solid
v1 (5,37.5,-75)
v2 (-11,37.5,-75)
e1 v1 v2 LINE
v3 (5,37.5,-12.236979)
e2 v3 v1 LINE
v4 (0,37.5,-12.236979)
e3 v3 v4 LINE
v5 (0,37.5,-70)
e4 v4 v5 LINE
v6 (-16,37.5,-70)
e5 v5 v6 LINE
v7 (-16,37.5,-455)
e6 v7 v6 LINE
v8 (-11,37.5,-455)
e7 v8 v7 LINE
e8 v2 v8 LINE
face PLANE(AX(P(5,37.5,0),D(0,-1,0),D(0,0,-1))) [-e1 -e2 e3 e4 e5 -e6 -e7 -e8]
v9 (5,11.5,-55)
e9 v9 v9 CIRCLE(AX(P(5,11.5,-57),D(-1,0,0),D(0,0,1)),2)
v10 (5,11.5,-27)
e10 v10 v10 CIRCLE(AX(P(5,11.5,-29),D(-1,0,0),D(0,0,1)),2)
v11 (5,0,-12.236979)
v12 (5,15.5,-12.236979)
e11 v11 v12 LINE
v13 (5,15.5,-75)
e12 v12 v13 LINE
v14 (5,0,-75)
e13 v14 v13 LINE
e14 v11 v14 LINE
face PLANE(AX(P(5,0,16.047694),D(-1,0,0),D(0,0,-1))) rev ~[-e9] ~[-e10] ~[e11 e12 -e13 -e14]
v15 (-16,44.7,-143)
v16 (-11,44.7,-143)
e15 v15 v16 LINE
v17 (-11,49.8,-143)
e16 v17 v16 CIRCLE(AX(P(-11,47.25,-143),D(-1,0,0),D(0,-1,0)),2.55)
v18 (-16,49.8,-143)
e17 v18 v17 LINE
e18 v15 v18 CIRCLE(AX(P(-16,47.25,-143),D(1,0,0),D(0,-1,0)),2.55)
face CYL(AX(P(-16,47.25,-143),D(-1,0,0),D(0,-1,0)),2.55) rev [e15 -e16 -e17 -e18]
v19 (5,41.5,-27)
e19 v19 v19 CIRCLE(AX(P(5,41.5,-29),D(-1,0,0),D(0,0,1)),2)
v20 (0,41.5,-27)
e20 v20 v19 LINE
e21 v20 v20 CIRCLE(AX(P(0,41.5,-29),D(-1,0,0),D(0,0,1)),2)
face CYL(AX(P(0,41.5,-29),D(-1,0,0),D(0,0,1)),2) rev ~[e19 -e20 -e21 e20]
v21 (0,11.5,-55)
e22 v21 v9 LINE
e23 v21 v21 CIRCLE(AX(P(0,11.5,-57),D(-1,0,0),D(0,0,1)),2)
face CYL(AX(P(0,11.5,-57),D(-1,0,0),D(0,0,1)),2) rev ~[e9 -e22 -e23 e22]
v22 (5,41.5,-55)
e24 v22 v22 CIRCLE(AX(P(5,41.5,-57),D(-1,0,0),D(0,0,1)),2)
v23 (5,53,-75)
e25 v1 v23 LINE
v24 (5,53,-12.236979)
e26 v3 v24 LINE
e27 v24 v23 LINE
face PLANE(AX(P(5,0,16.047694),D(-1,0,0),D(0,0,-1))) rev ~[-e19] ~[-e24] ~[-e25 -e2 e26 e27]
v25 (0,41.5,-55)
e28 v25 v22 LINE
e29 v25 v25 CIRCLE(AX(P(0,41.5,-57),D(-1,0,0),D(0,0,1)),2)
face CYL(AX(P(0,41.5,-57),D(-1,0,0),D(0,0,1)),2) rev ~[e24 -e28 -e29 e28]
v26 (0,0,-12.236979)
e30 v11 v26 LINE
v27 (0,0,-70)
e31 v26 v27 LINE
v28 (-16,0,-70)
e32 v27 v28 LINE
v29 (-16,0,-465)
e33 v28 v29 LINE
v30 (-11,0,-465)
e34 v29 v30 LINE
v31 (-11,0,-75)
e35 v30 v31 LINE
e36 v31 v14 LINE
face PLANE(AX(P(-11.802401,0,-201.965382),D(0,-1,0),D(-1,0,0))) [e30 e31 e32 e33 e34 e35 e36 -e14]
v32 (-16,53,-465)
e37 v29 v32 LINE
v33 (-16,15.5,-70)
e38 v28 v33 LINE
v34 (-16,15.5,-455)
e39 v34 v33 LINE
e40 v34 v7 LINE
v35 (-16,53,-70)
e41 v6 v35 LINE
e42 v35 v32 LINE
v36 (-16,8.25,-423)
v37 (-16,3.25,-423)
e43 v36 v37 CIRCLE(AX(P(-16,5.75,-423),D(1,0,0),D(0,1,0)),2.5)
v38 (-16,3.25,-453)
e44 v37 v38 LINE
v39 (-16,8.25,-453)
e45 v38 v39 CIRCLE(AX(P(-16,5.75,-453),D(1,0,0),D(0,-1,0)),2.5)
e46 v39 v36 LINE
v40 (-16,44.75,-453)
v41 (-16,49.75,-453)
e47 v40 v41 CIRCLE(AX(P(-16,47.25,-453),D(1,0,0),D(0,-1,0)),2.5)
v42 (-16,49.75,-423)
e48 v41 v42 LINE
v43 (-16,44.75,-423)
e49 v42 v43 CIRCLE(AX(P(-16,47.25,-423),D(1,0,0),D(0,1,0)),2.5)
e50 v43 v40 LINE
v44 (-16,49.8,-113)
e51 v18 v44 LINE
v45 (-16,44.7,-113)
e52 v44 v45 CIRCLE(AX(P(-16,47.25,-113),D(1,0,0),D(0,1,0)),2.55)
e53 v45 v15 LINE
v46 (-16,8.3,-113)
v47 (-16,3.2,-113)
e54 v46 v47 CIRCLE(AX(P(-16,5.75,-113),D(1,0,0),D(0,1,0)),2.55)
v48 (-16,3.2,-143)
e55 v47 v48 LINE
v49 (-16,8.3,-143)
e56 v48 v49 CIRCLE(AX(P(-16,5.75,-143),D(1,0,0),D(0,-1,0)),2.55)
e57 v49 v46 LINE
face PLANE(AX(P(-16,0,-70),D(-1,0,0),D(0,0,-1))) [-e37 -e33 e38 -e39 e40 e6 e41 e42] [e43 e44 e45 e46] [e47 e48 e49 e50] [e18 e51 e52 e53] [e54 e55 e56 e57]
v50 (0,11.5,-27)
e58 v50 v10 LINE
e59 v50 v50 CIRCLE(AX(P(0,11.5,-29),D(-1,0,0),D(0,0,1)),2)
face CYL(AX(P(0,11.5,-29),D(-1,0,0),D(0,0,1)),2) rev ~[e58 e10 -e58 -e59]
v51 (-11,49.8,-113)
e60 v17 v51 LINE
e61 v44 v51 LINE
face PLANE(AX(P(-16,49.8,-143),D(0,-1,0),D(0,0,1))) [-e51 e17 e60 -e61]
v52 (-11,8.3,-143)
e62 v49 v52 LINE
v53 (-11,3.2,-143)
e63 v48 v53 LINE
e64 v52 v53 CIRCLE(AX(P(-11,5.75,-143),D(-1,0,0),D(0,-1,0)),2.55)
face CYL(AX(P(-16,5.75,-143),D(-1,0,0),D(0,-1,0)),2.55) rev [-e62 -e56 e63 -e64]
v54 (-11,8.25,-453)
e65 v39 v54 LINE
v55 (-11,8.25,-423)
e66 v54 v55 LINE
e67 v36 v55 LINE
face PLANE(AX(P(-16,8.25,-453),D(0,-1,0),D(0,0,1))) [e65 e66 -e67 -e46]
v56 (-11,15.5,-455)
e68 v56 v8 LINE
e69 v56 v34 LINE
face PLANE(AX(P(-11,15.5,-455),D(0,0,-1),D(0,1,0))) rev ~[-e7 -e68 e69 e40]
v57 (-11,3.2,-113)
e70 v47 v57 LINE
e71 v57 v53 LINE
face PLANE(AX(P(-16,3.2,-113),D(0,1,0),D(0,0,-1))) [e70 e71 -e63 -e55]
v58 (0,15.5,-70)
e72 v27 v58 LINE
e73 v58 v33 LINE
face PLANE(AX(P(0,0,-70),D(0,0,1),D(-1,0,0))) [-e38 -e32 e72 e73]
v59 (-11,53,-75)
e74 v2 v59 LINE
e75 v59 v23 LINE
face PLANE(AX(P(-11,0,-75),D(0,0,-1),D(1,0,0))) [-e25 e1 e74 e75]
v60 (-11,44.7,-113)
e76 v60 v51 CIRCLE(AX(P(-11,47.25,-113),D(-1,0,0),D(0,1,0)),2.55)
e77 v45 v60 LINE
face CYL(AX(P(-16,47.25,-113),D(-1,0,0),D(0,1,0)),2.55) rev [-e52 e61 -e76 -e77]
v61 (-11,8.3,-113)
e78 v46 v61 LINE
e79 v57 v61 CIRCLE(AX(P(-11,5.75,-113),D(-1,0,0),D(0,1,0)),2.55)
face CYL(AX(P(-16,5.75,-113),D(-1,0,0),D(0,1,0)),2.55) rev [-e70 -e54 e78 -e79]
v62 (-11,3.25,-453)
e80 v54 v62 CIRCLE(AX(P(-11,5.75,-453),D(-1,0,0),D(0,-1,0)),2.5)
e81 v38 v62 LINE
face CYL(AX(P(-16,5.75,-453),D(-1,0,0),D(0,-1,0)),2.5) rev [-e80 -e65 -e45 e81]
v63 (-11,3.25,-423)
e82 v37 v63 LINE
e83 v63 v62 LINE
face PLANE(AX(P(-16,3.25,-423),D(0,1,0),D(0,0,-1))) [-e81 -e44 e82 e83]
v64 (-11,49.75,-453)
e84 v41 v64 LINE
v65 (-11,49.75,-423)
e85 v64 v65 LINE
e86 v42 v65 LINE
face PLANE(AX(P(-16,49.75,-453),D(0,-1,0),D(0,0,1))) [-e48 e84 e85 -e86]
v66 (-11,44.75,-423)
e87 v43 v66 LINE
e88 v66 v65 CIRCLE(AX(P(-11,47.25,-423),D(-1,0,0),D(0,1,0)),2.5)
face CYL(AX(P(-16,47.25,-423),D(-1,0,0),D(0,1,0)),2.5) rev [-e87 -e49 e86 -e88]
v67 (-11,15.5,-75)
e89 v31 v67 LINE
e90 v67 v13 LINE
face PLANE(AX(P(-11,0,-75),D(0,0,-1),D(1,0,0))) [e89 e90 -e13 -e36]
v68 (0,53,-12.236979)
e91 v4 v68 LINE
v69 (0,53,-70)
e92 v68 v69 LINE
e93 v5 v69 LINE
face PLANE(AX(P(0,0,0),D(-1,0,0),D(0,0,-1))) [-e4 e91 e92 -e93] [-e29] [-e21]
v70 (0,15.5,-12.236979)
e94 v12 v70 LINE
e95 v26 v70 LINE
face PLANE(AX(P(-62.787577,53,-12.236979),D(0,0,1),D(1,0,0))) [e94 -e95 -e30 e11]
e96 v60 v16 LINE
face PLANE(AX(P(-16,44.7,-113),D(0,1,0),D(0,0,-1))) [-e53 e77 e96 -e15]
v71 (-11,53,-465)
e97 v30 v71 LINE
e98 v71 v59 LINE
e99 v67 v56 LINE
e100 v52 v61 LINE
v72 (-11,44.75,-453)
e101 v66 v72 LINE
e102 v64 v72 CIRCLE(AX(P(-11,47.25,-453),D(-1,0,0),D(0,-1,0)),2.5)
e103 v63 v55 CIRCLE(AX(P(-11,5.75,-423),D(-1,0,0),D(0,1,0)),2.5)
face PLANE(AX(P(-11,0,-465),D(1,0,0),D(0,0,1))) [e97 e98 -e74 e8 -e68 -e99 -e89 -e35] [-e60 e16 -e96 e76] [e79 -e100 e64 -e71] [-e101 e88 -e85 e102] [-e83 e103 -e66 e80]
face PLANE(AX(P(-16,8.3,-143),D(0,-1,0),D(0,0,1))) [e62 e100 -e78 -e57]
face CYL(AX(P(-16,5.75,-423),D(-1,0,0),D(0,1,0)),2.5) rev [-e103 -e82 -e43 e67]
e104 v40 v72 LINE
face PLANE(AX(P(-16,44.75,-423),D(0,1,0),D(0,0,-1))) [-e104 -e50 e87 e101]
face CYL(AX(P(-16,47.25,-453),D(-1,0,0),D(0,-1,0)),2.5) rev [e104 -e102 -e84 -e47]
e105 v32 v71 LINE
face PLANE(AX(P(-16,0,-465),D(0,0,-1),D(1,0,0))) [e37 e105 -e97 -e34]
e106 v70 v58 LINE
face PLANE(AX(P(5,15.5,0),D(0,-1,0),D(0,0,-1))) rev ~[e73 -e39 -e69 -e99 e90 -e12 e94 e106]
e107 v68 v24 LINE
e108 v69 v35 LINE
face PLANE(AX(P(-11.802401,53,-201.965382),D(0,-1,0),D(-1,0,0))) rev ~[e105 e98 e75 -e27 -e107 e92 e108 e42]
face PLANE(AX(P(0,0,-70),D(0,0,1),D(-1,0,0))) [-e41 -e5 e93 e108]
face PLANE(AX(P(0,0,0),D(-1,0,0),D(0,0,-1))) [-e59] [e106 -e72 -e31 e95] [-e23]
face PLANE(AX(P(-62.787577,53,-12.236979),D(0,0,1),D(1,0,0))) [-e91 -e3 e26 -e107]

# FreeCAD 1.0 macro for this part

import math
import FreeCAD as App
import Part
import Sketcher

V = App.Vector
Q = App.Units.Quantity

doc = App.newDocument("Part")
params = doc.addObject("Spreadsheet::Sheet", "Params")
for row, (alias, value) in enumerate([
    ("sketch1_width", "16 mm"),
    ("sketch1_width2", "5 mm"),
    ("sketch1_height", "70 mm"),
    ("sketch1_height2", "390 mm"),
    ("sketch1_height3", "395 mm"),
    ("pad1_length", "53 mm"),
    ("sketch2_width", "22 mm"),
    ("sketch2_height", "75 mm"),
    ("pocket1_length", "21 mm"),
    ("sketch3_diameter", "4 mm"),
    ("sketch4_diameter", "4 mm"),
    ("sketch5_diameter", "4 mm"),
    ("sketch6_diameter", "4 mm"),
    ("sketch7_width", "22 mm"),
    ("sketch7_height", "380 mm"),
    ("sketch8_height", "30 mm"),
    ("sketch8_radius", "2.55 mm"),
    ("sketch9_height", "30 mm"),
    ("sketch9_radius", "2.55 mm"),
    ("sketch10_radius", "2.5 mm"),
    ("sketch10_height", "30 mm"),
    ("sketch11_radius", "2.5 mm"),
    ("sketch11_height", "30 mm"),
], start=1):
    params.set(f"A{row}", alias)
    params.set(f"B{row}", "=" + value)
    params.setAlias(f"B{row}", alias)

body = doc.addObject("PartDesign::Body", "Body")

sketch1 = body.newObject("Sketcher::SketchObject", "Sketch")
sketch1.AttachmentSupport = (doc.getObject("XZ_Plane"), [""])
sketch1.MapMode = "FlatFace"
sketch1.addGeometry([
    Part.LineSegment(V(0, -70, 0), V(0, 0, 0)),
    Part.LineSegment(V(0, 0, 0), V(-42.239607, 0, 0)),
    Part.LineSegment(V(-42.239607, 0, 0), V(-42.239607, 16.047694, 0)),
    Part.LineSegment(V(-42.239607, 16.047694, 0), V(5, 16.047694, 0)),
    Part.LineSegment(V(5, 16.047694, 0), V(5, -75, 0)),
    Part.LineSegment(V(5, -75, 0), V(-11, -75, 0)),
    Part.LineSegment(V(-11, -75, 0), V(-11, -465, 0)),
    Part.LineSegment(V(-11, -465, 0), V(-16, -465, 0)),
    Part.LineSegment(V(-16, -465, 0), V(-16, -70, 0)),
    Part.LineSegment(V(-16, -70, 0), V(0, -70, 0)),
], False)
sketch1.addConstraint([
    Sketcher.Constraint("Coincident", 0, 2, 1, 1),
    Sketcher.Constraint("Coincident", 1, 2, 2, 1),
    Sketcher.Constraint("Coincident", 2, 2, 3, 1),
    Sketcher.Constraint("Coincident", 3, 2, 4, 1),
    Sketcher.Constraint("Coincident", 4, 2, 5, 1),
    Sketcher.Constraint("Coincident", 5, 2, 6, 1),
    Sketcher.Constraint("Coincident", 6, 2, 7, 1),
    Sketcher.Constraint("Coincident", 7, 2, 8, 1),
    Sketcher.Constraint("Coincident", 8, 2, 9, 1),
    Sketcher.Constraint("Coincident", 9, 2, 0, 1),
    Sketcher.Constraint("Vertical", 0),
    Sketcher.Constraint("Horizontal", 1),
    Sketcher.Constraint("Vertical", 2),
    Sketcher.Constraint("Horizontal", 3),
    Sketcher.Constraint("Vertical", 4),
    Sketcher.Constraint("Horizontal", 5),
    Sketcher.Constraint("Vertical", 6),
    Sketcher.Constraint("Horizontal", 7),
    Sketcher.Constraint("Vertical", 8),
    Sketcher.Constraint("Horizontal", 9),
    Sketcher.Constraint("Coincident", 0, 2, -1, 1),
    Sketcher.Constraint("Equal", 5, 9),
    Sketcher.Constraint("DistanceX", 5, 2, 5, 1, Q("16 mm")),
    Sketcher.Constraint("DistanceX", 7, 2, 7, 1, Q("5 mm")),
    Sketcher.Constraint("DistanceY", 0, 1, 0, 2, Q("70 mm")),
    Sketcher.Constraint("DistanceY", 6, 2, 6, 1, Q("390 mm")),
    Sketcher.Constraint("DistanceY", 8, 1, 8, 2, Q("395 mm")),
    Sketcher.Constraint("DistanceX", 1, 2, 1, 1, Q("42.239607 mm")),
    Sketcher.Constraint("DistanceY", 2, 1, 2, 2, Q("16.047694 mm")),
])
sketch1.setExpression("Constraints[22]", "Params.sketch1_width")
sketch1.setExpression("Constraints[23]", "Params.sketch1_width2")
sketch1.setExpression("Constraints[24]", "Params.sketch1_height")
sketch1.setExpression("Constraints[25]", "Params.sketch1_height2")
sketch1.setExpression("Constraints[26]", "Params.sketch1_height3")
pad1 = body.newObject("PartDesign::Pad", "Pad")
pad1.Profile = sketch1
pad1.setExpression("Length", "Params.pad1_length")
pad1.Reversed = True

sketch2 = body.newObject("Sketcher::SketchObject", "Sketch001")
sketch2.AttachmentSupport = (doc.getObject("YZ_Plane"), [""])
sketch2.MapMode = "FlatFace"
sketch2.AttachmentOffset = App.Placement(V(0, 0, 5), App.Rotation())
sketch2.addGeometry([
    Part.LineSegment(V(37.5, 0, 0), V(15.5, 0, 0)),
    Part.LineSegment(V(15.5, 0, 0), V(15.5, -75, 0)),
    Part.LineSegment(V(15.5, -75, 0), V(37.5, -75, 0)),
    Part.LineSegment(V(37.5, -75, 0), V(37.5, 0, 0)),
], False)
sketch2.addConstraint([
    Sketcher.Constraint("Coincident", 0, 2, 1, 1),
    Sketcher.Constraint("Coincident", 1, 2, 2, 1),
    Sketcher.Constraint("Coincident", 2, 2, 3, 1),
    Sketcher.Constraint("Coincident", 3, 2, 0, 1),
    Sketcher.Constraint("Horizontal", 0),
    Sketcher.Constraint("Vertical", 1),
    Sketcher.Constraint("Horizontal", 2),
    Sketcher.Constraint("Vertical", 3),
    Sketcher.Constraint("PointOnObject", 0, 2, -1),
    Sketcher.Constraint("DistanceX", 0, 2, 0, 1, Q("22 mm")),
    Sketcher.Constraint("DistanceY", 1, 2, 1, 1, Q("75 mm")),
    Sketcher.Constraint("DistanceX", -1, 1, 0, 2, Q("15.5 mm")),
])
sketch2.setExpression("Constraints[9]", "Params.sketch2_width")
sketch2.setExpression("Constraints[10]", "Params.sketch2_height")
pocket1 = body.newObject("PartDesign::Pocket", "Pocket")
pocket1.Profile = sketch2
pocket1.setExpression("Length", "Params.pocket1_length")

sketch3 = body.newObject("Sketcher::SketchObject", "Sketch002")
sketch3.AttachmentSupport = (doc.getObject("YZ_Plane"), [""])
sketch3.MapMode = "FlatFace"
sketch3.addGeometry(Part.Circle(V(11.5, -57, 0), V(0, 0, 1), 2), False)
sketch3.addConstraint([
    Sketcher.Constraint("Diameter", 0, Q("4 mm")),
    Sketcher.Constraint("DistanceY", 0, 3, -1, 1, Q("57 mm")),
    Sketcher.Constraint("DistanceX", -1, 1, 0, 3, Q("11.5 mm")),
])
sketch3.setExpression("Constraints[0]", "Params.sketch3_diameter")
pocket2 = body.newObject("PartDesign::Pocket", "Pocket001")
pocket2.Profile = sketch3
pocket2.Type = "UpToFirst"
pocket2.Reversed = True

sketch4 = body.newObject("Sketcher::SketchObject", "Sketch003")
sketch4.AttachmentSupport = (doc.getObject("YZ_Plane"), [""])
sketch4.MapMode = "FlatFace"
sketch4.addGeometry(Part.Circle(V(41.5, -57, 0), V(0, 0, 1), 2), False)
sketch4.addConstraint([
    Sketcher.Constraint("Diameter", 0, Q("4 mm")),
    Sketcher.Constraint("DistanceY", 0, 3, -1, 1, Q("57 mm")),
    Sketcher.Constraint("DistanceX", -1, 1, 0, 3, Q("41.5 mm")),
])
sketch4.setExpression("Constraints[0]", "Params.sketch4_diameter")
pocket3 = body.newObject("PartDesign::Pocket", "Pocket002")
pocket3.Profile = sketch4
pocket3.Type = "UpToFirst"
pocket3.Reversed = True

sketch5 = body.newObject("Sketcher::SketchObject", "Sketch004")
sketch5.AttachmentSupport = (doc.getObject("YZ_Plane"), [""])
sketch5.MapMode = "FlatFace"
sketch5.addGeometry(Part.Circle(V(11.5, -29, 0), V(0, 0, 1), 2), False)
sketch5.addConstraint([
    Sketcher.Constraint("Diameter", 0, Q("4 mm")),
    Sketcher.Constraint("DistanceY", 0, 3, -1, 1, Q("29 mm")),
    Sketcher.Constraint("DistanceX", -1, 1, 0, 3, Q("11.5 mm")),
])
sketch5.setExpression("Constraints[0]", "Params.sketch5_diameter")
pocket4 = body.newObject("PartDesign::Pocket", "Pocket003")
pocket4.Profile = sketch5
pocket4.Type = "UpToFirst"
pocket4.Reversed = True

sketch6 = body.newObject("Sketcher::SketchObject", "Sketch005")
sketch6.AttachmentSupport = (doc.getObject("YZ_Plane"), [""])
sketch6.MapMode = "FlatFace"
sketch6.addGeometry(Part.Circle(V(41.5, -29, 0), V(0, 0, 1), 2), False)
sketch6.addConstraint([
    Sketcher.Constraint("Diameter", 0, Q("4 mm")),
    Sketcher.Constraint("DistanceY", 0, 3, -1, 1, Q("29 mm")),
    Sketcher.Constraint("DistanceX", -1, 1, 0, 3, Q("41.5 mm")),
])
sketch6.setExpression("Constraints[0]", "Params.sketch6_diameter")
pocket5 = body.newObject("PartDesign::Pocket", "Pocket004")
pocket5.Profile = sketch6
pocket5.Type = "UpToFirst"
pocket5.Reversed = True

sketch7 = body.newObject("Sketcher::SketchObject", "Sketch006")
sketch7.AttachmentSupport = (doc.getObject("YZ_Plane"), [""])
sketch7.MapMode = "FlatFace"
sketch7.AttachmentOffset = App.Placement(V(0, 0, -11), App.Rotation())
sketch7.addGeometry([
    Part.LineSegment(V(37.5, -75, 0), V(15.5, -75, 0)),
    Part.LineSegment(V(15.5, -75, 0), V(15.5, -455, 0)),
    Part.LineSegment(V(15.5, -455, 0), V(37.5, -455, 0)),
    Part.LineSegment(V(37.5, -455, 0), V(37.5, -75, 0)),
], False)
sketch7.addConstraint([
    Sketcher.Constraint("Coincident", 0, 2, 1, 1),
    Sketcher.Constraint("Coincident", 1, 2, 2, 1),
    Sketcher.Constraint("Coincident", 2, 2, 3, 1),
    Sketcher.Constraint("Coincident", 3, 2, 0, 1),
    Sketcher.Constraint("Horizontal", 0),
    Sketcher.Constraint("Vertical", 1),
    Sketcher.Constraint("Horizontal", 2),
    Sketcher.Constraint("Vertical", 3),
    Sketcher.Constraint("DistanceX", 0, 2, 0, 1, Q("22 mm")),
    Sketcher.Constraint("DistanceY", 1, 2, 1, 1, Q("380 mm")),
    Sketcher.Constraint("DistanceY", 0, 2, -1, 1, Q("75 mm")),
    Sketcher.Constraint("DistanceX", -1, 1, 0, 2, Q("15.5 mm")),
])
sketch7.setExpression("Constraints[8]", "Params.sketch7_width")
sketch7.setExpression("Constraints[9]", "Params.sketch7_height")
pocket6 = body.newObject("PartDesign::Pocket", "Pocket005")
pocket6.Profile = sketch7
pocket6.Type = "UpToFirst"

sketch8 = body.newObject("Sketcher::SketchObject", "Sketch007")
sketch8.AttachmentSupport = (doc.getObject("YZ_Plane"), [""])
sketch8.MapMode = "FlatFace"
sketch8.AttachmentOffset = App.Placement(V(0, 0, -16), App.Rotation())
sketch8.addGeometry([
    Part.LineSegment(V(8.3, -113, 0), V(8.3, -143, 0)),
    Part.ArcOfCircle(Part.Circle(V(5.75, -143, 0), V(0, 0, 1), 2.55), math.radians(180), math.radians(360)),
    Part.LineSegment(V(3.2, -143, 0), V(3.2, -113, 0)),
    Part.ArcOfCircle(Part.Circle(V(5.75, -113, 0), V(0, 0, 1), 2.55), math.radians(0), math.radians(180)),
], False)
sketch8.addConstraint([
    Sketcher.Constraint("Tangent", 0, 2, 1, 2),
    Sketcher.Constraint("Tangent", 1, 1, 2, 1),
    Sketcher.Constraint("Tangent", 2, 2, 3, 2),
    Sketcher.Constraint("Tangent", 3, 1, 0, 1),
    Sketcher.Constraint("Vertical", 0),
    Sketcher.Constraint("Vertical", 2),
    Sketcher.Constraint("DistanceY", 0, 2, 0, 1, Q("30 mm")),
    Sketcher.Constraint("Radius", 1, Q("2.55 mm")),
    Sketcher.Constraint("DistanceY", 1, 3, -1, 1, Q("143 mm")),
    Sketcher.Constraint("DistanceX", -1, 1, 0, 2, Q("8.3 mm")),
])
sketch8.setExpression("Constraints[6]", "Params.sketch8_height")
sketch8.setExpression("Constraints[7]", "Params.sketch8_radius")
pocket7 = body.newObject("PartDesign::Pocket", "Pocket006")
pocket7.Profile = sketch8
pocket7.Type = "UpToFirst"
pocket7.Reversed = True

sketch9 = body.newObject("Sketcher::SketchObject", "Sketch008")
sketch9.AttachmentSupport = (doc.getObject("YZ_Plane"), [""])
sketch9.MapMode = "FlatFace"
sketch9.AttachmentOffset = App.Placement(V(0, 0, -16), App.Rotation())
sketch9.addGeometry([
    Part.LineSegment(V(49.8, -113, 0), V(49.8, -143, 0)),
    Part.ArcOfCircle(Part.Circle(V(47.25, -143, 0), V(0, 0, 1), 2.55), math.radians(180), math.radians(360)),
    Part.LineSegment(V(44.7, -143, 0), V(44.7, -113, 0)),
    Part.ArcOfCircle(Part.Circle(V(47.25, -113, 0), V(0, 0, 1), 2.55), math.radians(0), math.radians(180)),
], False)
sketch9.addConstraint([
    Sketcher.Constraint("Tangent", 0, 2, 1, 2),
    Sketcher.Constraint("Tangent", 1, 1, 2, 1),
    Sketcher.Constraint("Tangent", 2, 2, 3, 2),
    Sketcher.Constraint("Tangent", 3, 1, 0, 1),
    Sketcher.Constraint("Vertical", 0),
    Sketcher.Constraint("Vertical", 2),
    Sketcher.Constraint("DistanceY", 0, 2, 0, 1, Q("30 mm")),
    Sketcher.Constraint("Radius", 1, Q("2.55 mm")),
    Sketcher.Constraint("DistanceY", 1, 3, -1, 1, Q("143 mm")),
    Sketcher.Constraint("DistanceX", -1, 1, 0, 2, Q("49.8 mm")),
])
sketch9.setExpression("Constraints[6]", "Params.sketch9_height")
sketch9.setExpression("Constraints[7]", "Params.sketch9_radius")
pocket8 = body.newObject("PartDesign::Pocket", "Pocket007")
pocket8.Profile = sketch9
pocket8.Type = "UpToFirst"
pocket8.Reversed = True

sketch10 = body.newObject("Sketcher::SketchObject", "Sketch009")
sketch10.AttachmentSupport = (doc.getObject("YZ_Plane"), [""])
sketch10.MapMode = "FlatFace"
sketch10.AttachmentOffset = App.Placement(V(0, 0, -16), App.Rotation())
sketch10.addGeometry([
    Part.LineSegment(V(3.25, -453, 0), V(3.25, -423, 0)),
    Part.ArcOfCircle(Part.Circle(V(5.75, -423, 0), V(0, 0, 1), 2.5), math.radians(0), math.radians(180)),
    Part.LineSegment(V(8.25, -423, 0), V(8.25, -453, 0)),
    Part.ArcOfCircle(Part.Circle(V(5.75, -453, 0), V(0, 0, 1), 2.5), math.radians(180), math.radians(360)),
], False)
sketch10.addConstraint([
    Sketcher.Constraint("Tangent", 0, 2, 1, 2),
    Sketcher.Constraint("Tangent", 1, 1, 2, 1),
    Sketcher.Constraint("Tangent", 2, 2, 3, 2),
    Sketcher.Constraint("Tangent", 3, 1, 0, 1),
    Sketcher.Constraint("Vertical", 0),
    Sketcher.Constraint("Vertical", 2),
    Sketcher.Constraint("Radius", 1, Q("2.5 mm")),
    Sketcher.Constraint("DistanceY", 0, 1, 0, 2, Q("30 mm")),
    Sketcher.Constraint("DistanceY", 1, 3, -1, 1, Q("423 mm")),
    Sketcher.Constraint("DistanceX", -1, 1, 1, 3, Q("5.75 mm")),
])
sketch10.setExpression("Constraints[6]", "Params.sketch10_radius")
sketch10.setExpression("Constraints[7]", "Params.sketch10_height")
pocket9 = body.newObject("PartDesign::Pocket", "Pocket008")
pocket9.Profile = sketch10
pocket9.Type = "UpToFirst"
pocket9.Reversed = True

sketch11 = body.newObject("Sketcher::SketchObject", "Sketch010")
sketch11.AttachmentSupport = (doc.getObject("YZ_Plane"), [""])
sketch11.MapMode = "FlatFace"
sketch11.AttachmentOffset = App.Placement(V(0, 0, -16), App.Rotation())
sketch11.addGeometry([
    Part.LineSegment(V(44.75, -453, 0), V(44.75, -423, 0)),
    Part.ArcOfCircle(Part.Circle(V(47.25, -423, 0), V(0, 0, 1), 2.5), math.radians(0), math.radians(180)),
    Part.LineSegment(V(49.75, -423, 0), V(49.75, -453, 0)),
    Part.ArcOfCircle(Part.Circle(V(47.25, -453, 0), V(0, 0, 1), 2.5), math.radians(180), math.radians(360)),
], False)
sketch11.addConstraint([
    Sketcher.Constraint("Tangent", 0, 2, 1, 2),
    Sketcher.Constraint("Tangent", 1, 1, 2, 1),
    Sketcher.Constraint("Tangent", 2, 2, 3, 2),
    Sketcher.Constraint("Tangent", 3, 1, 0, 1),
    Sketcher.Constraint("Vertical", 0),
    Sketcher.Constraint("Vertical", 2),
    Sketcher.Constraint("Radius", 1, Q("2.5 mm")),
    Sketcher.Constraint("DistanceY", 0, 1, 0, 2, Q("30 mm")),
    Sketcher.Constraint("DistanceY", 1, 3, -1, 1, Q("423 mm")),
    Sketcher.Constraint("DistanceX", -1, 1, 1, 3, Q("47.25 mm")),
])
sketch11.setExpression("Constraints[6]", "Params.sketch11_radius")
sketch11.setExpression("Constraints[7]", "Params.sketch11_height")
pocket10 = body.newObject("PartDesign::Pocket", "Pocket009")
pocket10.Profile = sketch11
pocket10.Type = "UpToFirst"
pocket10.Reversed = True

sketch12 = body.newObject("Sketcher::SketchObject", "Sketch011")
sketch12.AttachmentSupport = (doc.getObject("XZ_Plane"), [""])
sketch12.MapMode = "FlatFace"
sketch12.AttachmentOffset = App.Placement(V(0, 0, -53), App.Rotation())
sketch12.addGeometry([
    Part.LineSegment(V(-62.787577, -12.236979, 0), V(-62.787577, 28.707906, 0)),
    Part.LineSegment(V(-62.787577, 28.707906, 0), V(31.081413, 28.707906, 0)),
    Part.LineSegment(V(31.081413, 28.707906, 0), V(31.081413, -12.236979, 0)),
    Part.LineSegment(V(31.081413, -12.236979, 0), V(-62.787577, -12.236979, 0)),
], False)
sketch12.addConstraint([
    Sketcher.Constraint("Coincident", 0, 2, 1, 1),
    Sketcher.Constraint("Coincident", 1, 2, 2, 1),
    Sketcher.Constraint("Coincident", 2, 2, 3, 1),
    Sketcher.Constraint("Coincident", 3, 2, 0, 1),
    Sketcher.Constraint("Vertical", 0),
    Sketcher.Constraint("Horizontal", 1),
    Sketcher.Constraint("Vertical", 2),
    Sketcher.Constraint("Horizontal", 3),
    Sketcher.Constraint("DistanceX", 1, 1, 1, 2, Q("93.868991 mm")),
    Sketcher.Constraint("DistanceY", 0, 1, 0, 2, Q("40.944885 mm")),
    Sketcher.Constraint("DistanceY", 2, 2, -1, 1, Q("12.236979 mm")),
    Sketcher.Constraint("DistanceX", 0, 2, -1, 1, Q("62.787577 mm")),
])
pocket11 = body.newObject("PartDesign::Pocket", "Pocket010")
pocket11.Profile = sketch12
pocket11.Type = "ThroughAll"
pocket11.Reversed = True

doc.recompute()
